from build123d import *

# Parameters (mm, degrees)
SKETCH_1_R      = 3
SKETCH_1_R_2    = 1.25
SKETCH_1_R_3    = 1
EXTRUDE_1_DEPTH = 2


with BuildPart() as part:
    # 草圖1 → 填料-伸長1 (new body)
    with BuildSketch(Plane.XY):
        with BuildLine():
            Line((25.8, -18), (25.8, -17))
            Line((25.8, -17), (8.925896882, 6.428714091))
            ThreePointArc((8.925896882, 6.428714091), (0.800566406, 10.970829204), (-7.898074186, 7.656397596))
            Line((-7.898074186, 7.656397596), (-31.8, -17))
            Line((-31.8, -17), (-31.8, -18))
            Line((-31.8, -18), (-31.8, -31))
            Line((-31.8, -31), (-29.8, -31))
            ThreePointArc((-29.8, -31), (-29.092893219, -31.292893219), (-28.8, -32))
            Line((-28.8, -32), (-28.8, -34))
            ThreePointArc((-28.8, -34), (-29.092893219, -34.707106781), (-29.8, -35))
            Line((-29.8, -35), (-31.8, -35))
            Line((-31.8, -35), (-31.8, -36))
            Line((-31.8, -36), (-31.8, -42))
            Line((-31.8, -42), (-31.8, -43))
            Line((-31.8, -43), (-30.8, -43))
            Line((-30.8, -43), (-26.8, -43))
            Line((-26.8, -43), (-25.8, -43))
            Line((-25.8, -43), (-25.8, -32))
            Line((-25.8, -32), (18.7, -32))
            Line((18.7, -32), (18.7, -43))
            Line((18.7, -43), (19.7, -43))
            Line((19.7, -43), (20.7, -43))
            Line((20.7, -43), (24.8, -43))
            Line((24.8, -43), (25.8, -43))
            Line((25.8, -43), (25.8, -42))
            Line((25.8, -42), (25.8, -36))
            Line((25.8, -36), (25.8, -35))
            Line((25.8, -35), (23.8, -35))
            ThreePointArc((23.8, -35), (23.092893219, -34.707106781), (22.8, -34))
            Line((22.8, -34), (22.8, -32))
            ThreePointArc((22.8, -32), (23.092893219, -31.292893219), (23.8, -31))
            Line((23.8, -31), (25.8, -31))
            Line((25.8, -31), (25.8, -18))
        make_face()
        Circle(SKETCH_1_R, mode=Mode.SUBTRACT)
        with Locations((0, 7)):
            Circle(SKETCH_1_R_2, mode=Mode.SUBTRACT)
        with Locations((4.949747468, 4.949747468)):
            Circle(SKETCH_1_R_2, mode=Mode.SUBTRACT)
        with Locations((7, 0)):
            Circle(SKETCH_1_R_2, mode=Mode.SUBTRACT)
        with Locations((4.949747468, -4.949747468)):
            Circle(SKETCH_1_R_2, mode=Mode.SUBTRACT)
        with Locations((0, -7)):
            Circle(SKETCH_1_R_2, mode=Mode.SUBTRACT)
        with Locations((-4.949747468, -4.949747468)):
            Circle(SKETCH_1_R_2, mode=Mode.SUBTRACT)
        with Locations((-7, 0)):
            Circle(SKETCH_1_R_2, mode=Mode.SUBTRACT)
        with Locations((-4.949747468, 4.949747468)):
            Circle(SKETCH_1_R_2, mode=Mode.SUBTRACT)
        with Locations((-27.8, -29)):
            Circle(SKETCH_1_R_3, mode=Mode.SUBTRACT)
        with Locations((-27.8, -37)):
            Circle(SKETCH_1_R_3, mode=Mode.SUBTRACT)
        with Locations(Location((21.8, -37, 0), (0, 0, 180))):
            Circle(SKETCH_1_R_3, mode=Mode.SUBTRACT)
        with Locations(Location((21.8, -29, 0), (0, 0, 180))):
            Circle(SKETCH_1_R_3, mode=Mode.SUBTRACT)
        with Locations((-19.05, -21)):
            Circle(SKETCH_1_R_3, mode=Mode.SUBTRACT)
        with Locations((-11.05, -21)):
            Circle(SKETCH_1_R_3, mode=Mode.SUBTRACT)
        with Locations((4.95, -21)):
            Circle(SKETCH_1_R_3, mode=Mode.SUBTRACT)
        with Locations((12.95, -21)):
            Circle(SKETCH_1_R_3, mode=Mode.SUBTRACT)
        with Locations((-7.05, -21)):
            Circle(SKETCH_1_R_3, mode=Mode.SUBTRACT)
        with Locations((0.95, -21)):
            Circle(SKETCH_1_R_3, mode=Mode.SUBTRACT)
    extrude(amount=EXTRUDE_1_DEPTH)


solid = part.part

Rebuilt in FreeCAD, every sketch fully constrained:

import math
import FreeCAD as App
import Part
import Sketcher
from FreeCAD import Vector
Q = App.Units.Quantity

doc = App.newDocument("Part")
body = doc.addObject("PartDesign::Body", "Body")

sketch1 = body.newObject("Sketcher::SketchObject", "Sketch")
sketch1.AttachmentSupport = (doc.getObject("XY_Plane"), [""])
sketch1.MapMode = "FlatFace"
sketch1.addGeometry([
    Part.LineSegment(Vector(25.8, -17, 0), Vector(8.9, 6.4, 0)),
    Part.ArcOfCircle(Part.Circle(Vector(0, 0, 0), Vector(0, 0, 1), 11), math.radians(36), math.radians(136)),
    Part.LineSegment(Vector(-7.9, 7.7, 0), Vector(-31.8, -17, 0)),
    Part.LineSegment(Vector(-31.8, -17, 0), Vector(-31.8, -31, 0)),
    Part.LineSegment(Vector(-31.8, -31, 0), Vector(-29.8, -31, 0)),
    Part.ArcOfCircle(Part.Circle(Vector(-29.8, -32, 0), Vector(0, 0, 1), 1), math.radians(0), math.radians(90)),
    Part.LineSegment(Vector(-28.8, -32, 0), Vector(-28.8, -34, 0)),
    Part.ArcOfCircle(Part.Circle(Vector(-29.8, -34, 0), Vector(0, 0, 1), 1), math.radians(-90), math.radians(0)),
    Part.LineSegment(Vector(-29.8, -35, 0), Vector(-31.8, -35, 0)),
    Part.LineSegment(Vector(-31.8, -35, 0), Vector(-31.8, -43, 0)),
    Part.LineSegment(Vector(-31.8, -43, 0), Vector(-25.8, -43, 0)),
    Part.LineSegment(Vector(-25.8, -43, 0), Vector(-25.8, -32, 0)),
    Part.LineSegment(Vector(-25.8, -32, 0), Vector(18.7, -32, 0)),
    Part.LineSegment(Vector(18.7, -32, 0), Vector(18.7, -43, 0)),
    Part.LineSegment(Vector(18.7, -43, 0), Vector(25.8, -43, 0)),
    Part.LineSegment(Vector(25.8, -43, 0), Vector(25.8, -35, 0)),
    Part.LineSegment(Vector(25.8, -35, 0), Vector(23.8, -35, 0)),
    Part.ArcOfCircle(Part.Circle(Vector(23.8, -34, 0), Vector(0, 0, 1), 1), math.radians(-180), math.radians(-90)),
    Part.LineSegment(Vector(22.8, -34, 0), Vector(22.8, -32, 0)),
    Part.ArcOfCircle(Part.Circle(Vector(23.8, -32, 0), Vector(0, 0, 1), 1), math.radians(90), math.radians(180)),
    Part.LineSegment(Vector(23.8, -31, 0), Vector(25.8, -31, 0)),
    Part.LineSegment(Vector(25.8, -31, 0), Vector(25.8, -17, 0)),
    Part.Circle(Vector(-27.8, -37, 0), Vector(0, 0, 1), 1),
    Part.Circle(Vector(-27.8, -29, 0), Vector(0, 0, 1), 1),
    Part.Circle(Vector(-19.1, -21, 0), Vector(0, 0, 1), 1),
    Part.Circle(Vector(-11.1, -21, 0), Vector(0, 0, 1), 1),
    Part.Circle(Vector(-7, -21, 0), Vector(0, 0, 1), 1),
    Part.Circle(Vector(21.8, -37, 0), Vector(0, 0, 1), 1),
    Part.Circle(Vector(21.8, -29, 0), Vector(0, 0, 1), 1),
    Part.Circle(Vector(0.9, -21, 0), Vector(0, 0, 1), 1),
    Part.Circle(Vector(5, -21, 0), Vector(0, 0, 1), 1),
    Part.Circle(Vector(12.9, -21, 0), Vector(0, 0, 1), 1),
    Part.Circle(Vector(-4.9, -4.9, 0), Vector(0, 0, 1), 1.2),
    Part.Circle(Vector(-7, 0, 0), Vector(0, 0, 1), 1.2),
    Part.Circle(Vector(-4.9, 4.9, 0), Vector(0, 0, 1), 1.2),
    Part.Circle(Vector(0, -7, 0), Vector(0, 0, 1), 1.2),
    Part.Circle(Vector(4.9, -4.9, 0), Vector(0, 0, 1), 1.2),
    Part.Circle(Vector(0, 0, 0), Vector(0, 0, 1), 3),
    Part.Circle(Vector(7, 0, 0), Vector(0, 0, 1), 1.2),
    Part.Circle(Vector(0, 7, 0), Vector(0, 0, 1), 1.2),
    Part.Circle(Vector(4.9, 4.9, 0), Vector(0, 0, 1), 1.2),
], False)
sketch1.addConstraint([
    Sketcher.Constraint("Tangent", 0, 2, 1, 1),
    Sketcher.Constraint("Tangent", 1, 2, 2, 1),
    Sketcher.Constraint("Coincident", 2, 2, 3, 1),
    Sketcher.Constraint("Coincident", 3, 2, 4, 1),
    Sketcher.Constraint("Tangent", 4, 2, 5, 2),
    Sketcher.Constraint("Tangent", 5, 1, 6, 1),
    Sketcher.Constraint("Tangent", 6, 2, 7, 2),
    Sketcher.Constraint("Tangent", 7, 1, 8, 1),
    Sketcher.Constraint("Coincident", 8, 2, 9, 1),
    Sketcher.Constraint("Coincident", 9, 2, 10, 1),
    Sketcher.Constraint("Coincident", 10, 2, 11, 1),
    Sketcher.Constraint("Coincident", 11, 2, 12, 1),
    Sketcher.Constraint("Coincident", 12, 2, 13, 1),
    Sketcher.Constraint("Coincident", 13, 2, 14, 1),
    Sketcher.Constraint("Coincident", 14, 2, 15, 1),
    Sketcher.Constraint("Coincident", 15, 2, 16, 1),
    Sketcher.Constraint("Tangent", 16, 2, 17, 2),
    Sketcher.Constraint("Tangent", 17, 1, 18, 1),
    Sketcher.Constraint("Tangent", 18, 2, 19, 2),
    Sketcher.Constraint("Tangent", 19, 1, 20, 1),
    Sketcher.Constraint("Coincident", 20, 2, 21, 1),
    Sketcher.Constraint("Coincident", 21, 2, 0, 1),
    Sketcher.Constraint("Vertical", 3),
    Sketcher.Constraint("Horizontal", 4),
    Sketcher.Constraint("Vertical", 6),
    Sketcher.Constraint("Horizontal", 8),
    Sketcher.Constraint("Vertical", 9),
    Sketcher.Constraint("Horizontal", 10),
    Sketcher.Constraint("Vertical", 11),
    Sketcher.Constraint("Horizontal", 12),
    Sketcher.Constraint("Vertical", 13),
    Sketcher.Constraint("Horizontal", 14),
    Sketcher.Constraint("Vertical", 15),
    Sketcher.Constraint("Horizontal", 16),
    Sketcher.Constraint("Vertical", 18),
    Sketcher.Constraint("Horizontal", 20),
    Sketcher.Constraint("Vertical", 21),
    Sketcher.Constraint("Coincident", 1, 3, -1, 1),
    Sketcher.Constraint("Coincident", 37, 3, -1, 1),
    Sketcher.Constraint("Equal", 5, 7),
    Sketcher.Constraint("Equal", 7, 17),
    Sketcher.Constraint("Equal", 17, 19),
    Sketcher.Constraint("Equal", 19, 22),
    Sketcher.Constraint("Equal", 22, 23),
    Sketcher.Constraint("Equal", 23, 24),
    Sketcher.Constraint("Equal", 24, 25),
    Sketcher.Constraint("Equal", 25, 26),
    Sketcher.Constraint("Equal", 26, 27),
    Sketcher.Constraint("Equal", 27, 28),
    Sketcher.Constraint("Equal", 28, 29),
    Sketcher.Constraint("Equal", 29, 30),
    Sketcher.Constraint("Equal", 30, 31),
    Sketcher.Constraint("Equal", 32, 33),
    Sketcher.Constraint("Equal", 33, 34),
    Sketcher.Constraint("Equal", 34, 35),
    Sketcher.Constraint("Equal", 35, 36),
    Sketcher.Constraint("Equal", 36, 38),
    Sketcher.Constraint("Equal", 38, 39),
    Sketcher.Constraint("Equal", 39, 40),
    Sketcher.Constraint("Symmetric", 34, 3, 36, 3, -1, 1),
    Sketcher.Constraint("Symmetric", 33, 3, 38, 3, -1, 1),
    Sketcher.Constraint("Symmetric", 35, 3, 39, 3, -1, 1),
    Sketcher.Constraint("Symmetric", 32, 3, 40, 3, -1, 1),
    Sketcher.Constraint("Symmetric", 32, 3, 36, 3, -2),
    Sketcher.Constraint("Symmetric", 10, 2, 14, 2, -2),
    Sketcher.Constraint("PointOnObject", 33, 3, -1),
    Sketcher.Constraint("PointOnObject", 35, 3, -2),
    Sketcher.Constraint("Horizontal", 7, 3, 17, 3),
    Sketcher.Constraint("Horizontal", 5, 3, 19, 3),
    Sketcher.Constraint("Horizontal", 24, 3, 25, 3),
    Sketcher.Constraint("Horizontal", 25, 3, 26, 3),
    Sketcher.Constraint("Horizontal", 22, 3, 27, 3),
    Sketcher.Constraint("Horizontal", 23, 3, 28, 3),
    Sketcher.Constraint("Horizontal", 26, 3, 29, 3),
    Sketcher.Constraint("Horizontal", 29, 3, 30, 3),
    Sketcher.Constraint("Horizontal", 30, 3, 31, 3),
    Sketcher.Constraint("Horizontal", 5, 1, 11, 2),
    Sketcher.Constraint("Horizontal", 2, 2, 21, 2),
    Sketcher.Constraint("Vertical", 22, 3, 23, 3),
    Sketcher.Constraint("Vertical", 27, 3, 28, 3),
    Sketcher.Constraint("Vertical", 3, 2, 8, 2),
    Sketcher.Constraint("Vertical", 15, 2, 20, 2),
    Sketcher.Constraint("Equal", 8, 16),
    Sketcher.Constraint("Equal", 20, 6),
    Sketcher.Constraint("Diameter", 22, Q("2 mm")),
    Sketcher.Constraint("Diameter", 37, Q("6 mm")),
    Sketcher.Constraint("Radius", 1, Q("11 mm")),
    Sketcher.Constraint("Diameter", 32, Q("2.5 mm")),
    Sketcher.Constraint("DistanceX", 4, 1, 4, 2, Q("2 mm")),
    Sketcher.Constraint("DistanceX", 10, 1, 10, 2, Q("6 mm")),
    Sketcher.Constraint("DistanceY", 3, 2, 3, 1, Q("14 mm")),
    Sketcher.Constraint("DistanceY", 9, 2, 9, 1, Q("8 mm")),
    Sketcher.Constraint("DistanceX", 12, 1, 12, 2, Q("44.5 mm")),
    Sketcher.Constraint("DistanceX", 14, 1, 14, 2, Q("7.1 mm")),
    Sketcher.Constraint("DistanceY", 5, 3, -1, 1, Q("32 mm")),
    Sketcher.Constraint("DistanceY", 22, 3, -1, 1, Q("37 mm")),
    Sketcher.Constraint("DistanceY", 23, 3, -1, 1, Q("29 mm")),
    Sketcher.Constraint("DistanceY", 24, 3, -1, 1, Q("21 mm")),
    Sketcher.Constraint("DistanceX", 33, 3, -1, 1, Q("7 mm")),
    Sketcher.Constraint("DistanceY", 35, 3, -1, 1, Q("7 mm")),
    Sketcher.Constraint("DistanceX", 7, 3, 22, 3, Q("2 mm")),
    Sketcher.Constraint("DistanceX", 24, 3, 25, 3, Q("8 mm")),
    Sketcher.Constraint("DistanceX", 25, 3, 26, 3, Q("4 mm")),
    Sketcher.Constraint("DistanceX", 27, 3, 17, 3, Q("2 mm")),
    Sketcher.Constraint("DistanceX", 26, 3, 29, 3, Q("8 mm")),
    Sketcher.Constraint("DistanceX", 29, 3, 30, 3, Q("4 mm")),
    Sketcher.Constraint("DistanceX", 30, 3, 31, 3, Q("8 mm")),
    Sketcher.Constraint("DistanceX", 24, 3, -1, 1, Q("19.05 mm")),
    Sketcher.Constraint("DistanceX", 40, 3, 0, 2, Q("3.976149 mm")),
    Sketcher.Constraint("DistanceY", 34, 3, 1, 2, Q("2.70665 mm")),
])
pad1 = body.newObject("PartDesign::Pad", "Pad")
pad1.Profile = sketch1
pad1.Length = 2

doc.recompute()
